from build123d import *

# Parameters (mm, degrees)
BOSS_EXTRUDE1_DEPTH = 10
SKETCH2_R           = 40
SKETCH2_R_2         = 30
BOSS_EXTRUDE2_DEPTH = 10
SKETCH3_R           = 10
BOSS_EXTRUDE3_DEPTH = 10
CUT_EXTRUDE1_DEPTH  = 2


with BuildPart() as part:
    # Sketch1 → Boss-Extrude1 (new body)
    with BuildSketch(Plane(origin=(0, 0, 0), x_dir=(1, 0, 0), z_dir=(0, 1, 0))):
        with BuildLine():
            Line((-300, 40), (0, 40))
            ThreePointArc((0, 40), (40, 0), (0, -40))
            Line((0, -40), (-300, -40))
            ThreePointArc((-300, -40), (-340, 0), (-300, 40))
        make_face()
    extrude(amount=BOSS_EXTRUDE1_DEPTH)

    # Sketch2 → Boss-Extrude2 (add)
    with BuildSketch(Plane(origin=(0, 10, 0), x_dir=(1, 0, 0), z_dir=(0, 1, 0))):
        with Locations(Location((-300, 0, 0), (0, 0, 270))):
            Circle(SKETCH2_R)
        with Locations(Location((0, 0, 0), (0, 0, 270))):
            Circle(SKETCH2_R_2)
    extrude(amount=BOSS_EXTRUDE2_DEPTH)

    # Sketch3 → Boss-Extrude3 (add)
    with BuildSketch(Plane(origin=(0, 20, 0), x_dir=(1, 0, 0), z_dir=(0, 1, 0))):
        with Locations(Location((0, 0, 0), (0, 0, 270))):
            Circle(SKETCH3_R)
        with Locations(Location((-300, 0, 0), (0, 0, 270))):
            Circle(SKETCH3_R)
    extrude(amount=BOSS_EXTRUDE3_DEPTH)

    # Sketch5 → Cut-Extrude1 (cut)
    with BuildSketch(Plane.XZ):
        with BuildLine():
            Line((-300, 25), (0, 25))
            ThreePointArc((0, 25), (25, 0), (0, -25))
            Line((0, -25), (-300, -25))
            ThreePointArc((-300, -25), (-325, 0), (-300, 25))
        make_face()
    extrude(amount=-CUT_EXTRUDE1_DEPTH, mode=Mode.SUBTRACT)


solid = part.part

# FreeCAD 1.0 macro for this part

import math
import FreeCAD as App
import Part
import Sketcher

doc = App.newDocument("Part")
body = doc.addObject("PartDesign::Body", "Body")

sketch1 = body.newObject("Sketcher::SketchObject", "Sketch")
sketch1.AttachmentSupport = (doc.getObject("XZ_Plane"), [""])
sketch1.MapMode = "FlatFace"
sketch1.addGeometry([
    Part.LineSegment(App.Vector(0, -40, 0), App.Vector(-300, -40, 0)),
    Part.ArcOfCircle(Part.Circle(App.Vector(-300, 0, 0), App.Vector(0, 0, 1), 40), math.radians(90), math.radians(270)),
    Part.LineSegment(App.Vector(-300, 40, 0), App.Vector(0, 40, 0)),
    Part.ArcOfCircle(Part.Circle(App.Vector(0, 0, 0), App.Vector(0, 0, 1), 40), math.radians(-90), math.radians(90)),
], False)
sketch1.addConstraint([
    Sketcher.Constraint("Tangent", 0, 2, 1, 2),
    Sketcher.Constraint("Tangent", 1, 1, 2, 1),
    Sketcher.Constraint("Tangent", 2, 2, 3, 2),
    Sketcher.Constraint("Tangent", 3, 1, 0, 1),
    Sketcher.Constraint("Horizontal", 0),
    Sketcher.Constraint("Horizontal", 2),
    Sketcher.Constraint("Coincident", 3, 3, -1, 1),
    Sketcher.Constraint("Radius", 1, 40.0),
    Sketcher.Constraint("DistanceX", 0, 2, 0, 1, 300.0),
])
pad1 = body.newObject("PartDesign::Pad", "Pad")
pad1.Profile = sketch1
pad1.Length = 10
pad1.Reversed = True

sketch2 = body.newObject("Sketcher::SketchObject", "Sketch001")
sketch2.AttachmentSupport = (doc.getObject("XZ_Plane"), [""])
sketch2.MapMode = "FlatFace"
sketch2.AttachmentOffset = App.Placement(App.Vector(0, 0, -10), App.Rotation())
sketch2.addGeometry([
    Part.Circle(App.Vector(-300, 0, 0), App.Vector(0, 0, 1), 40),
    Part.Circle(App.Vector(0, 0, 0), App.Vector(0, 0, 1), 30),
], False)
sketch2.addConstraint([
    Sketcher.Constraint("Coincident", 1, 3, -1, 1),
    Sketcher.Constraint("PointOnObject", 0, 3, -1),
    Sketcher.Constraint("Diameter", 0, 80.0),
    Sketcher.Constraint("Diameter", 1, 60.0),
    Sketcher.Constraint("DistanceX", 0, 3, -1, 1, 300.0),
])
pad2 = body.newObject("PartDesign::Pad", "Pad001")
pad2.Profile = sketch2
pad2.Length = 10
pad2.Reversed = True

sketch3 = body.newObject("Sketcher::SketchObject", "Sketch002")
sketch3.AttachmentSupport = (doc.getObject("XZ_Plane"), [""])
sketch3.MapMode = "FlatFace"
sketch3.AttachmentOffset = App.Placement(App.Vector(0, 0, -20), App.Rotation())
sketch3.addGeometry([
    Part.Circle(App.Vector(0, 0, 0), App.Vector(0, 0, 1), 10),
    Part.Circle(App.Vector(-300, 0, 0), App.Vector(0, 0, 1), 10),
], False)
sketch3.addConstraint([
    Sketcher.Constraint("Coincident", 0, 3, -1, 1),
    Sketcher.Constraint("Equal", 0, 1),
    Sketcher.Constraint("PointOnObject", 1, 3, -1),
    Sketcher.Constraint("Diameter", 0, 20.0),
    Sketcher.Constraint("DistanceX", 1, 3, -1, 1, 300.0),
])
pad3 = body.newObject("PartDesign::Pad", "Pad002")
pad3.Profile = sketch3
pad3.Length = 10
pad3.Reversed = True

sketch4 = body.newObject("Sketcher::SketchObject", "Sketch003")
sketch4.AttachmentSupport = (doc.getObject("XZ_Plane"), [""])
sketch4.MapMode = "FlatFace"
sketch4.addGeometry([
    Part.LineSegment(App.Vector(0, 25, 0), App.Vector(-300, 25, 0)),
    Part.ArcOfCircle(Part.Circle(App.Vector(-300, 0, 0), App.Vector(0, 0, 1), 25), math.radians(90), math.radians(270)),
    Part.LineSegment(App.Vector(-300, -25, 0), App.Vector(0, -25, 0)),
    Part.ArcOfCircle(Part.Circle(App.Vector(0, 0, 0), App.Vector(0, 0, 1), 25), math.radians(-90), math.radians(90)),
], False)
sketch4.addConstraint([
    Sketcher.Constraint("Tangent", 0, 2, 1, 1),
    Sketcher.Constraint("Tangent", 1, 2, 2, 1),
    Sketcher.Constraint("Tangent", 2, 2, 3, 1),
    Sketcher.Constraint("Tangent", 3, 2, 0, 1),
    Sketcher.Constraint("Horizontal", 0),
    Sketcher.Constraint("Horizontal", 2),
    Sketcher.Constraint("Coincident", 3, 3, -1, 1),
    Sketcher.Constraint("Radius", 1, 25.0),
    Sketcher.Constraint("DistanceX", 0, 2, 0, 1, 300.0),
])
pocket1 = body.newObject("PartDesign::Pocket", "Pocket")
pocket1.Profile = sketch4
pocket1.Length = 2

doc.recompute()
